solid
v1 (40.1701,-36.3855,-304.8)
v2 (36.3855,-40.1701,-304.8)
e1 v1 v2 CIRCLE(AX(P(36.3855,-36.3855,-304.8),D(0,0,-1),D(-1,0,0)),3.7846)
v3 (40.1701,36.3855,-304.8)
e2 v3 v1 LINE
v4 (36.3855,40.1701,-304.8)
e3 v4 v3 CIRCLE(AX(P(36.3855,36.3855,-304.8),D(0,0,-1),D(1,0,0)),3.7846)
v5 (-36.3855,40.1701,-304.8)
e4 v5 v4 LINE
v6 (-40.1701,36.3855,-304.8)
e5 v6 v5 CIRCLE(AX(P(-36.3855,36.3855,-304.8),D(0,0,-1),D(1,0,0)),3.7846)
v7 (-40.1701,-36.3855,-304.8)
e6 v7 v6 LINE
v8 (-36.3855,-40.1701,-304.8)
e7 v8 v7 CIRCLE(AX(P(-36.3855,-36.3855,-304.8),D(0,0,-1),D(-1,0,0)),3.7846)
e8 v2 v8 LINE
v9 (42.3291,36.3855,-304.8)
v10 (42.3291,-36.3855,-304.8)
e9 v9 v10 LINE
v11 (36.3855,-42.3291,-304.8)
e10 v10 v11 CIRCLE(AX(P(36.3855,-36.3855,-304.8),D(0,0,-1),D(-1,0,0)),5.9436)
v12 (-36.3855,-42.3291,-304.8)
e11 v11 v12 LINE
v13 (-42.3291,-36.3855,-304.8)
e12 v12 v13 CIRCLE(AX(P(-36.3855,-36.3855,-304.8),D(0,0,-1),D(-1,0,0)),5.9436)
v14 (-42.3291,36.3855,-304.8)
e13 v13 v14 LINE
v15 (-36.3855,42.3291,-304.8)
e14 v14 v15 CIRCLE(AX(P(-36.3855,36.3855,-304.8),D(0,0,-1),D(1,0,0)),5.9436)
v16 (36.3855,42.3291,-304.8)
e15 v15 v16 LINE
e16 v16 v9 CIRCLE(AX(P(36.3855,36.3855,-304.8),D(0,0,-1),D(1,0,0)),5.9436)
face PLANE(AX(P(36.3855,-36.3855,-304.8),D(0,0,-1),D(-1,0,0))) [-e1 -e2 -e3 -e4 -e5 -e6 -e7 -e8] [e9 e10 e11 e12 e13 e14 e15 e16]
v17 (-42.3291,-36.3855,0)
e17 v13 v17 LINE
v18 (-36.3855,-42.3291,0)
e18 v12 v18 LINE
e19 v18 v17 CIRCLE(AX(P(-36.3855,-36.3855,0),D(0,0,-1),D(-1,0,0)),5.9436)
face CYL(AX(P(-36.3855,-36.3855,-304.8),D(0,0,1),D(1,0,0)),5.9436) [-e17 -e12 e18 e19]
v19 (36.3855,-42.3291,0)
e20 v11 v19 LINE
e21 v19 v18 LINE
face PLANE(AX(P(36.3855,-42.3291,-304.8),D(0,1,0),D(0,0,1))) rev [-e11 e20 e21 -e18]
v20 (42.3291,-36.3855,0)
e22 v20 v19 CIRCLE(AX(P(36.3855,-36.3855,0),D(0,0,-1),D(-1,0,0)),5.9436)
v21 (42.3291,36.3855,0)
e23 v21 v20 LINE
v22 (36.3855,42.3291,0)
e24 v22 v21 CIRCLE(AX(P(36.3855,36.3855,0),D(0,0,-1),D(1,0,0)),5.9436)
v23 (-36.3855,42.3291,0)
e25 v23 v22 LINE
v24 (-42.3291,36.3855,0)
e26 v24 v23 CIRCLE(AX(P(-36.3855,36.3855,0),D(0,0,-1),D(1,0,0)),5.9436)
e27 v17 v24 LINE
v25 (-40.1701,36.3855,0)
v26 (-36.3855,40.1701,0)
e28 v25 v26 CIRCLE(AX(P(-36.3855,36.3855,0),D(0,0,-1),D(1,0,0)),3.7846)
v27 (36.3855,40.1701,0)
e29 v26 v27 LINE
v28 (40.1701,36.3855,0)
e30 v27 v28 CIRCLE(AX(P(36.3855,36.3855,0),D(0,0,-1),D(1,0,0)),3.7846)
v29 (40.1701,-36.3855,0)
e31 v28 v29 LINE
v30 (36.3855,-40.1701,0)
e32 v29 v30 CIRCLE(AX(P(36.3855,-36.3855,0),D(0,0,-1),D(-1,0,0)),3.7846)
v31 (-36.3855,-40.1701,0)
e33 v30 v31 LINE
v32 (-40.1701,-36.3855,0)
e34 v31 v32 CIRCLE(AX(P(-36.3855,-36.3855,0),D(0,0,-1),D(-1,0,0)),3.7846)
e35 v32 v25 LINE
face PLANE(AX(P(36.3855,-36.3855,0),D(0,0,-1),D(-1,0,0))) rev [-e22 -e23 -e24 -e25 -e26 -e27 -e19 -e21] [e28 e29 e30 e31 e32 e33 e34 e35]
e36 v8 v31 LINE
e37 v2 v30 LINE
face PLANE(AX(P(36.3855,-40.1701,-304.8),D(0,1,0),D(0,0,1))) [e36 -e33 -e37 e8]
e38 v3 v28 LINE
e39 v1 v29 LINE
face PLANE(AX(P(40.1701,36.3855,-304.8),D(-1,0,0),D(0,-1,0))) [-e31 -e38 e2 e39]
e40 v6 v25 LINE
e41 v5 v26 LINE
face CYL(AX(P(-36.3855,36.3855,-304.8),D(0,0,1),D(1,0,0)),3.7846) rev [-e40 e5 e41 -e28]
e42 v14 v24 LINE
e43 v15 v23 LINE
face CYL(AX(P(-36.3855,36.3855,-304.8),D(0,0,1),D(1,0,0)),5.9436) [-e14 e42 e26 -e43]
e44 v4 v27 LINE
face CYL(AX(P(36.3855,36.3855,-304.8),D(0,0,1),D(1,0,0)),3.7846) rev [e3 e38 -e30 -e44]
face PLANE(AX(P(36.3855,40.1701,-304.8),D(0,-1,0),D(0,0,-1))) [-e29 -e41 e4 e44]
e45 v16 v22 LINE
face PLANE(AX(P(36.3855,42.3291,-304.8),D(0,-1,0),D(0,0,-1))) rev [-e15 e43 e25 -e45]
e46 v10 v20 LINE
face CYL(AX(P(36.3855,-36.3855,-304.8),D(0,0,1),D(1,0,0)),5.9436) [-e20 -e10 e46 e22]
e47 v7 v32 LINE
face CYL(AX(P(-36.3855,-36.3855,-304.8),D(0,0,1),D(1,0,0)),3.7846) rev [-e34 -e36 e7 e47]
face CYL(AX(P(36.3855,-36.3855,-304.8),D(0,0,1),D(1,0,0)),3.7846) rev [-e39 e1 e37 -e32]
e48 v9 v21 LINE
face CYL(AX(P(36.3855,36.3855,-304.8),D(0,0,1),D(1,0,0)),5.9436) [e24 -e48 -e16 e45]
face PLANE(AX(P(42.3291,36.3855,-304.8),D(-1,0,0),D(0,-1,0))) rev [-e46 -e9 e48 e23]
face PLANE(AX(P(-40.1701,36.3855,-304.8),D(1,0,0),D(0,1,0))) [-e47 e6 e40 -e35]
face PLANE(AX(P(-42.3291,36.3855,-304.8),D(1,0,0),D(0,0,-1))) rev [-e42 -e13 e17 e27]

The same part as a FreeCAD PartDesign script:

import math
import FreeCAD as App
import Part
import Sketcher
Q = App.Units.Quantity

doc = App.newDocument("Part")
body = doc.addObject("PartDesign::Body", "Body")

sketch1 = body.newObject("Sketcher::SketchObject", "Sketch")
sketch1.AttachmentSupport = (doc.getObject("XY_Plane"), [""])
sketch1.MapMode = "FlatFace"
sketch1.addGeometry([
    Part.LineSegment(App.Vector(42.3, 36.4, 0), App.Vector(42.3, -36.4, 0)),
    Part.ArcOfCircle(Part.Circle(App.Vector(36.4, -36.4, 0), App.Vector(0, 0, 1), 5.9), math.radians(-90), math.radians(0)),
    Part.LineSegment(App.Vector(36.4, -42.3, 0), App.Vector(-36.4, -42.3, 0)),
    Part.ArcOfCircle(Part.Circle(App.Vector(-36.4, -36.4, 0), App.Vector(0, 0, 1), 5.9), math.radians(180), math.radians(270)),
    Part.LineSegment(App.Vector(-42.3, -36.4, 0), App.Vector(-42.3, 36.4, 0)),
    Part.ArcOfCircle(Part.Circle(App.Vector(-36.4, 36.4, 0), App.Vector(0, 0, 1), 5.9), math.radians(90), math.radians(180)),
    Part.LineSegment(App.Vector(-36.4, 42.3, 0), App.Vector(36.4, 42.3, 0)),
    Part.ArcOfCircle(Part.Circle(App.Vector(36.4, 36.4, 0), App.Vector(0, 0, 1), 5.9), math.radians(0), math.radians(90)),
    Part.LineSegment(App.Vector(40.2, -36.4, 0), App.Vector(40.2, 36.4, 0)),
    Part.ArcOfCircle(Part.Circle(App.Vector(36.4, 36.4, 0), App.Vector(0, 0, 1), 3.8), math.radians(0), math.radians(90)),
    Part.LineSegment(App.Vector(36.4, 40.2, 0), App.Vector(-36.4, 40.2, 0)),
    Part.ArcOfCircle(Part.Circle(App.Vector(-36.4, 36.4, 0), App.Vector(0, 0, 1), 3.8), math.radians(90), math.radians(180)),
    Part.LineSegment(App.Vector(-40.2, 36.4, 0), App.Vector(-40.2, -36.4, 0)),
    Part.ArcOfCircle(Part.Circle(App.Vector(-36.4, -36.4, 0), App.Vector(0, 0, 1), 3.8), math.radians(180), math.radians(270)),
    Part.LineSegment(App.Vector(-36.4, -40.2, 0), App.Vector(36.4, -40.2, 0)),
    Part.ArcOfCircle(Part.Circle(App.Vector(36.4, -36.4, 0), App.Vector(0, 0, 1), 3.8), math.radians(-90), math.radians(0)),
], False)
sketch1.addConstraint([
    Sketcher.Constraint("Tangent", 0, 2, 1, 2),
    Sketcher.Constraint("Tangent", 1, 1, 2, 1),
    Sketcher.Constraint("Tangent", 2, 2, 3, 2),
    Sketcher.Constraint("Tangent", 3, 1, 4, 1),
    Sketcher.Constraint("Tangent", 4, 2, 5, 2),
    Sketcher.Constraint("Tangent", 5, 1, 6, 1),
    Sketcher.Constraint("Tangent", 6, 2, 7, 2),
    Sketcher.Constraint("Tangent", 7, 1, 0, 1),
    Sketcher.Constraint("Tangent", 8, 2, 9, 1),
    Sketcher.Constraint("Tangent", 9, 2, 10, 1),
    Sketcher.Constraint("Tangent", 10, 2, 11, 1),
    Sketcher.Constraint("Tangent", 11, 2, 12, 1),
    Sketcher.Constraint("Tangent", 12, 2, 13, 1),
    Sketcher.Constraint("Tangent", 13, 2, 14, 1),
    Sketcher.Constraint("Tangent", 14, 2, 15, 1),
    Sketcher.Constraint("Tangent", 15, 2, 8, 1),
    Sketcher.Constraint("Vertical", 0),
    Sketcher.Constraint("Horizontal", 2),
    Sketcher.Constraint("Vertical", 4),
    Sketcher.Constraint("Horizontal", 6),
    Sketcher.Constraint("Vertical", 8),
    Sketcher.Constraint("Horizontal", 10),
    Sketcher.Constraint("Vertical", 12),
    Sketcher.Constraint("Horizontal", 14),
    Sketcher.Constraint("Coincident", 9, 3, 7, 3),
    Sketcher.Constraint("Coincident", 11, 3, 5, 3),
    Sketcher.Constraint("Coincident", 13, 3, 3, 3),
    Sketcher.Constraint("Equal", 1, 3),
    Sketcher.Constraint("Equal", 3, 5),
    Sketcher.Constraint("Equal", 5, 7),
    Sketcher.Constraint("Equal", 13, 15),
    Sketcher.Constraint("Symmetric", 1, 3, 5, 3, -1, 1),
    Sketcher.Constraint("Equal", 14, 0),
    Sketcher.Constraint("Radius", 1, Q("0.234 in")),
    Sketcher.Constraint("Radius", 9, Q("0.149 in")),
    Sketcher.Constraint("DistanceX", 2, 2, 2, 1, Q("2.865 in")),
])
pad1 = body.newObject("PartDesign::Pad", "Pad")
pad1.Profile = sketch1
pad1.Length = Q("12 in")
pad1.Reversed = True

doc.recompute()
